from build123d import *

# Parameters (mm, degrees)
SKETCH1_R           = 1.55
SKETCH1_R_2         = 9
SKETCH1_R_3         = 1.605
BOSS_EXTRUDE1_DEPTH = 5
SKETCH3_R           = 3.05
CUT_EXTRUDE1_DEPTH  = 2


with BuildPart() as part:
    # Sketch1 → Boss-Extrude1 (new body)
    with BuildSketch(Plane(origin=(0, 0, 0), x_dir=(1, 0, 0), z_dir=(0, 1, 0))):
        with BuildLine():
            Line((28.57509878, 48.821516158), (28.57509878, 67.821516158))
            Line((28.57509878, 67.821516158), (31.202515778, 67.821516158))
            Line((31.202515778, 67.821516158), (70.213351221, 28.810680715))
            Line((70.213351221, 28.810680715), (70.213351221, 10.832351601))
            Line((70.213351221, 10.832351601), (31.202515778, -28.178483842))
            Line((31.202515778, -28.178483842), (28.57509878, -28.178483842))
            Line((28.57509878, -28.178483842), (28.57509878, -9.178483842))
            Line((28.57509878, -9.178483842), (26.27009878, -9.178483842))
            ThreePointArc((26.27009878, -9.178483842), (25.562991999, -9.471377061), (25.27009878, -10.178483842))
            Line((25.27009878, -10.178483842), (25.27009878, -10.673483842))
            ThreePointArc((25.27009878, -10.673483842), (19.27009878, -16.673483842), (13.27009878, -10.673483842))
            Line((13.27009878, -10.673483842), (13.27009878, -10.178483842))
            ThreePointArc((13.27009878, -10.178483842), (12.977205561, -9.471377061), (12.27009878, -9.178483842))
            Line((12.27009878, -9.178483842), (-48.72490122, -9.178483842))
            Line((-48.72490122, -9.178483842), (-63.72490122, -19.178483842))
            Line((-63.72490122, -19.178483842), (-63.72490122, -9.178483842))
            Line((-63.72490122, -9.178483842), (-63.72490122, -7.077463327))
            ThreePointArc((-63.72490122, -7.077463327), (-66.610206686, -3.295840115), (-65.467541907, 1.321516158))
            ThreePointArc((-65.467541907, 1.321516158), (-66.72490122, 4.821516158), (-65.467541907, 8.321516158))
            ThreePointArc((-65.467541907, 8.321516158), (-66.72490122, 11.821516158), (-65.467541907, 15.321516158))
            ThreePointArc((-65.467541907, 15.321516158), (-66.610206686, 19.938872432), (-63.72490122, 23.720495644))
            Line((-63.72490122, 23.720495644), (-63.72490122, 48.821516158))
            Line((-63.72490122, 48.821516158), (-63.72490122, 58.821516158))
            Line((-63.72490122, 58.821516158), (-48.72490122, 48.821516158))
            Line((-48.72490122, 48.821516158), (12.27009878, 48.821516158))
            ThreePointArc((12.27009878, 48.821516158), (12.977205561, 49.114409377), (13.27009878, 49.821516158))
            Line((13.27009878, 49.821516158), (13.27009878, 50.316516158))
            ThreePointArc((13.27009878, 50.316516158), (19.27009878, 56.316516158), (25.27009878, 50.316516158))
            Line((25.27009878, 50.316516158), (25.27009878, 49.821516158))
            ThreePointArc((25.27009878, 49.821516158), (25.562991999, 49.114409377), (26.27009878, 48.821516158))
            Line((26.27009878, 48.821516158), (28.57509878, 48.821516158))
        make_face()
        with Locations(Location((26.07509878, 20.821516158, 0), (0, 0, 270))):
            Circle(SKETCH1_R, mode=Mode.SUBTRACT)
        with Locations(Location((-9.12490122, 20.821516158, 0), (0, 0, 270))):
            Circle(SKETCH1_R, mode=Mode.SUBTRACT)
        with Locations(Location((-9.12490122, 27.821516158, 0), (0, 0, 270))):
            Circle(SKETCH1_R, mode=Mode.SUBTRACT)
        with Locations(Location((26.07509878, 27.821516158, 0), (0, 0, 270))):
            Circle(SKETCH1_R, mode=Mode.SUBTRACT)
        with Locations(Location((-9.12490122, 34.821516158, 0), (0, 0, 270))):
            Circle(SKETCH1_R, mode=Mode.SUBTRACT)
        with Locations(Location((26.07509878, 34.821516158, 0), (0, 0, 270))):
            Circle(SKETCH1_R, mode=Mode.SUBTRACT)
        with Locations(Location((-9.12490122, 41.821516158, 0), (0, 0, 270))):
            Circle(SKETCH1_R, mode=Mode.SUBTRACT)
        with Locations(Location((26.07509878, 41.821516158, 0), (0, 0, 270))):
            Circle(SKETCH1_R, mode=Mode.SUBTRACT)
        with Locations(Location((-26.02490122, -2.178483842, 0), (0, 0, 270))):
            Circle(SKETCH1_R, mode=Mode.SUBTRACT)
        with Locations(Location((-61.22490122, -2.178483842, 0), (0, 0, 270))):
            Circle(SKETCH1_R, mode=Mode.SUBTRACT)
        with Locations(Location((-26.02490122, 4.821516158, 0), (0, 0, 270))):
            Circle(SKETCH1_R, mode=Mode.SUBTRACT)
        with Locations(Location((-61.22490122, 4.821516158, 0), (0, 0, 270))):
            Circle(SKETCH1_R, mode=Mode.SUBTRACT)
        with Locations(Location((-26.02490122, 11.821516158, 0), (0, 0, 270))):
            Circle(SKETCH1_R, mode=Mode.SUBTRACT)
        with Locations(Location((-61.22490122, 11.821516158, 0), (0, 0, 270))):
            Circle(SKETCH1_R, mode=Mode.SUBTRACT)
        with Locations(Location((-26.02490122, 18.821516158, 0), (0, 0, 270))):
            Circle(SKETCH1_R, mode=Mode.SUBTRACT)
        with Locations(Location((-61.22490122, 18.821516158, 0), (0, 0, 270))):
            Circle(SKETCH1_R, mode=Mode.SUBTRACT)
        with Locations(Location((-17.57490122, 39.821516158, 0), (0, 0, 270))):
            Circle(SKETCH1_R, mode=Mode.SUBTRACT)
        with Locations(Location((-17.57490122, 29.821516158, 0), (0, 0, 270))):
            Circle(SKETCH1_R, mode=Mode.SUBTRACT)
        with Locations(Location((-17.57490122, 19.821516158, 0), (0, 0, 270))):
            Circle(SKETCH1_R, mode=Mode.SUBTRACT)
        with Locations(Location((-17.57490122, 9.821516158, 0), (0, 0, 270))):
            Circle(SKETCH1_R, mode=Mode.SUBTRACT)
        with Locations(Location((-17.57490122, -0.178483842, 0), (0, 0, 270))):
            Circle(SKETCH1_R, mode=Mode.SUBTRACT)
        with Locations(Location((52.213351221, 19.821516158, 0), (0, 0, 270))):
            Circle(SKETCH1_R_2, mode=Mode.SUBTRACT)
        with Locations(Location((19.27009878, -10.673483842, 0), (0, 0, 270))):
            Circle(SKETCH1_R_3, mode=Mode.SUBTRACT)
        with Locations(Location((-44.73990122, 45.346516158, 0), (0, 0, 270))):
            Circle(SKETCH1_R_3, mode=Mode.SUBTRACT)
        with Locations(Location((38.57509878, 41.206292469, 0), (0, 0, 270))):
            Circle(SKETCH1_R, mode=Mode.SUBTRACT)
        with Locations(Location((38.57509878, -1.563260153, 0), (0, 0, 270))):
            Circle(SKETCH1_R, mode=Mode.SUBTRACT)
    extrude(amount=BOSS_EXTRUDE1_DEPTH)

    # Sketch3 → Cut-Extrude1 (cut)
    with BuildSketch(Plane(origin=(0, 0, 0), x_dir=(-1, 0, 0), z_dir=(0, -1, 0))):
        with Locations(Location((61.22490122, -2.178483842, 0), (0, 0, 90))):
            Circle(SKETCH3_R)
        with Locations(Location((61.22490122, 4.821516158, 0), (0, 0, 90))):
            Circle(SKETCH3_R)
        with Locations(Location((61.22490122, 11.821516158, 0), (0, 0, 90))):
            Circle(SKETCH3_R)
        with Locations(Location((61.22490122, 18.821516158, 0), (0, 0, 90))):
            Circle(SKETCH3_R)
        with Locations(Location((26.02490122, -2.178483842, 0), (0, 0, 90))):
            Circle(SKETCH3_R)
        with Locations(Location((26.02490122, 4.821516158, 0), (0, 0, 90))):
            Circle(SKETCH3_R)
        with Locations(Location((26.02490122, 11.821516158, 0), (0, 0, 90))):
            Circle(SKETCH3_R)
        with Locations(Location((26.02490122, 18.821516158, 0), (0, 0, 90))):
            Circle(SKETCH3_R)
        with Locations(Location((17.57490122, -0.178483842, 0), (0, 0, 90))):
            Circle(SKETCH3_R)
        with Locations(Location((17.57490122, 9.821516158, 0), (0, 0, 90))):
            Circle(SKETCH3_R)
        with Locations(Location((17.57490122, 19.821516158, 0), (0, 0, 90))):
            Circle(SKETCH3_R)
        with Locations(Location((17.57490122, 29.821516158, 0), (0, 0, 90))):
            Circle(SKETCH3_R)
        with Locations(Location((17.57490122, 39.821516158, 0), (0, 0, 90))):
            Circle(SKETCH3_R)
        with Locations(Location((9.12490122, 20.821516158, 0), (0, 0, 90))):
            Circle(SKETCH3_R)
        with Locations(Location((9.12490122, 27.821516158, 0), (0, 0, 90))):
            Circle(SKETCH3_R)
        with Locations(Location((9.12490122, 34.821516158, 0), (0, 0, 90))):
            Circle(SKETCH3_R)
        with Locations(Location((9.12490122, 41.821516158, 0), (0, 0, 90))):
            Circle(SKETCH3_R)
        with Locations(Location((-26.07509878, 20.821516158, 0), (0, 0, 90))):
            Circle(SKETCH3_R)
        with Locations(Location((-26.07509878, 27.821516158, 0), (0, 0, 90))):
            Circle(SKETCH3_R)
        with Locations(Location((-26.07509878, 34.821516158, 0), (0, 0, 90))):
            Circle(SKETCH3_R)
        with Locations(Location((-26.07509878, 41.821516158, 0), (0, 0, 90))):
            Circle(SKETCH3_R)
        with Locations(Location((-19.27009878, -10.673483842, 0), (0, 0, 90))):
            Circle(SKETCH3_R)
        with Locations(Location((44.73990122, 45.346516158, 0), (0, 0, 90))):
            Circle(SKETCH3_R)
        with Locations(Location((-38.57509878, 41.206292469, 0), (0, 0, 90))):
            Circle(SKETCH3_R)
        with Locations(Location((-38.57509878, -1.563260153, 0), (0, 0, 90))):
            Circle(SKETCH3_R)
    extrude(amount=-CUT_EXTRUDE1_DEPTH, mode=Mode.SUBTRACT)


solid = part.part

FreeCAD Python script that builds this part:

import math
import FreeCAD as App
import Part
import Sketcher

V = App.Vector

doc = App.newDocument("Part")
body = doc.addObject("PartDesign::Body", "Body")

# Sketch on XZ plane
sketch1 = doc.addObject("Sketcher::SketchObject", "Sketch")
body.addObject(sketch1)
sketch1.AttachmentSupport = (doc.XZ_Plane, [""])
sketch1.MapMode = "FlatFace"
sketch1.addGeometry(Part.LineSegment(V(28.58, -67.82, 0), V(28.58, -48.82, 0)), False)
sketch1.addGeometry(Part.LineSegment(V(28.58, -48.82, 0), V(26.27, -48.82, 0)), False)
sketch1.addGeometry(Part.ArcOfCircle(Part.Circle(V(26.27, -49.82, 0), V(0, 0, 1), 1), math.radians(90), math.radians(180)), False)
sketch1.addGeometry(Part.LineSegment(V(25.27, -49.82, 0), V(25.27, -50.32, 0)), False)
sketch1.addGeometry(Part.ArcOfCircle(Part.Circle(V(19.27, -50.32, 0), V(0, 0, 1), 6), math.radians(180), math.radians(360)), False)
sketch1.addGeometry(Part.LineSegment(V(13.27, -50.32, 0), V(13.27, -49.82, 0)), False)
sketch1.addGeometry(Part.ArcOfCircle(Part.Circle(V(12.27, -49.82, 0), V(0, 0, 1), 1), math.radians(0), math.radians(90)), False)
sketch1.addGeometry(Part.LineSegment(V(12.27, -48.82, 0), V(-48.72, -48.82, 0)), False)
sketch1.addGeometry(Part.LineSegment(V(-48.72, -48.82, 0), V(-63.72, -58.82, 0)), False)
sketch1.addGeometry(Part.LineSegment(V(-63.72, -58.82, 0), V(-63.72, -23.72, 0)), False)
sketch1.addGeometry(Part.ArcOfCircle(Part.Circle(V(-61.22, -18.82, 0), V(0, 0, 1), 5.5), math.radians(140), math.radians(243)), False)
sketch1.addGeometry(Part.ArcOfCircle(Part.Circle(V(-61.22, -11.82, 0), V(0, 0, 1), 5.5), math.radians(140), math.radians(220)), False)
sketch1.addGeometry(Part.ArcOfCircle(Part.Circle(V(-61.22, -4.82, 0), V(0, 0, 1), 5.5), math.radians(140), math.radians(220)), False)
sketch1.addGeometry(Part.ArcOfCircle(Part.Circle(V(-61.22, 2.18, 0), V(0, 0, 1), 5.5), math.radians(117), math.radians(220)), False)
sketch1.addGeometry(Part.LineSegment(V(-63.72, 7.08, 0), V(-63.72, 19.18, 0)), False)
sketch1.addGeometry(Part.LineSegment(V(-63.72, 19.18, 0), V(-48.72, 9.18, 0)), False)
sketch1.addGeometry(Part.LineSegment(V(-48.72, 9.18, 0), V(12.27, 9.18, 0)), False)
sketch1.addGeometry(Part.ArcOfCircle(Part.Circle(V(12.27, 10.18, 0), V(0, 0, 1), 1), math.radians(-90), math.radians(0)), False)
sketch1.addGeometry(Part.LineSegment(V(13.27, 10.18, 0), V(13.27, 10.67, 0)), False)
sketch1.addGeometry(Part.ArcOfCircle(Part.Circle(V(19.27, 10.67, 0), V(0, 0, 1), 6), math.radians(0), math.radians(180)), False)
sketch1.addGeometry(Part.LineSegment(V(25.27, 10.67, 0), V(25.27, 10.18, 0)), False)
sketch1.addGeometry(Part.ArcOfCircle(Part.Circle(V(26.27, 10.18, 0), V(0, 0, 1), 1), math.radians(-180), math.radians(-90)), False)
sketch1.addGeometry(Part.LineSegment(V(26.27, 9.18, 0), V(28.58, 9.18, 0)), False)
sketch1.addGeometry(Part.LineSegment(V(28.58, 9.18, 0), V(28.58, 28.18, 0)), False)
sketch1.addGeometry(Part.LineSegment(V(28.58, 28.18, 0), V(31.2, 28.18, 0)), False)
sketch1.addGeometry(Part.LineSegment(V(31.2, 28.18, 0), V(70.21, -10.83, 0)), False)
sketch1.addGeometry(Part.LineSegment(V(70.21, -10.83, 0), V(70.21, -28.81, 0)), False)
sketch1.addGeometry(Part.LineSegment(V(70.21, -28.81, 0), V(31.2, -67.82, 0)), False)
sketch1.addGeometry(Part.LineSegment(V(31.2, -67.82, 0), V(28.58, -67.82, 0)), False)
sketch1.addGeometry(Part.Circle(V(38.58, 1.56, 0), V(0, 0, 1), 1.55), False)
sketch1.addGeometry(Part.Circle(V(19.27, 10.67, 0), V(0, 0, 1), 1.6), False)
sketch1.addGeometry(Part.Circle(V(-26.02, 2.18, 0), V(0, 0, 1), 1.55), False)
sketch1.addGeometry(Part.Circle(V(-17.57, 0.18, 0), V(0, 0, 1), 1.55), False)
sketch1.addGeometry(Part.Circle(V(-61.22, 2.18, 0), V(0, 0, 1), 1.55), False)
sketch1.addGeometry(Part.Circle(V(-26.02, -4.82, 0), V(0, 0, 1), 1.55), False)
sketch1.addGeometry(Part.Circle(V(-17.57, -9.82, 0), V(0, 0, 1), 1.55), False)
sketch1.addGeometry(Part.Circle(V(-26.02, -11.82, 0), V(0, 0, 1), 1.55), False)
sketch1.addGeometry(Part.Circle(V(-61.22, -4.82, 0), V(0, 0, 1), 1.55), False)
sketch1.addGeometry(Part.Circle(V(-61.22, -11.82, 0), V(0, 0, 1), 1.55), False)
sketch1.addGeometry(Part.Circle(V(52.21, -19.82, 0), V(0, 0, 1), 9), False)
sketch1.addGeometry(Part.Circle(V(26.08, -20.82, 0), V(0, 0, 1), 1.55), False)
sketch1.addGeometry(Part.Circle(V(26.08, -27.82, 0), V(0, 0, 1), 1.55), False)
sketch1.addGeometry(Part.Circle(V(38.58, -41.21, 0), V(0, 0, 1), 1.55), False)
sketch1.addGeometry(Part.Circle(V(26.08, -34.82, 0), V(0, 0, 1), 1.55), False)
sketch1.addGeometry(Part.Circle(V(26.08, -41.82, 0), V(0, 0, 1), 1.55), False)
sketch1.addGeometry(Part.Circle(V(-9.12, -20.82, 0), V(0, 0, 1), 1.55), False)
sketch1.addGeometry(Part.Circle(V(-17.57, -19.82, 0), V(0, 0, 1), 1.55), False)
sketch1.addGeometry(Part.Circle(V(-26.02, -18.82, 0), V(0, 0, 1), 1.55), False)
sketch1.addGeometry(Part.Circle(V(-9.12, -27.82, 0), V(0, 0, 1), 1.55), False)
sketch1.addGeometry(Part.Circle(V(-17.57, -29.82, 0), V(0, 0, 1), 1.55), False)
sketch1.addGeometry(Part.Circle(V(-61.22, -18.82, 0), V(0, 0, 1), 1.55), False)
sketch1.addGeometry(Part.Circle(V(-9.12, -34.82, 0), V(0, 0, 1), 1.55), False)
sketch1.addGeometry(Part.Circle(V(-9.12, -41.82, 0), V(0, 0, 1), 1.55), False)
sketch1.addGeometry(Part.Circle(V(-17.57, -39.82, 0), V(0, 0, 1), 1.55), False)
sketch1.addGeometry(Part.Circle(V(-44.74, -45.35, 0), V(0, 0, 1), 1.6), False)
sketch1.addConstraint(Sketcher.Constraint("Coincident", 0, 2, 1, 1))
sketch1.addConstraint(Sketcher.Constraint("Tangent", 1, 2, 2, 1))
sketch1.addConstraint(Sketcher.Constraint("Tangent", 2, 2, 3, 1))
sketch1.addConstraint(Sketcher.Constraint("Tangent", 3, 2, 4, 2))
sketch1.addConstraint(Sketcher.Constraint("Tangent", 4, 1, 5, 1))
sketch1.addConstraint(Sketcher.Constraint("Tangent", 5, 2, 6, 1))
sketch1.addConstraint(Sketcher.Constraint("Tangent", 6, 2, 7, 1))
sketch1.addConstraint(Sketcher.Constraint("Coincident", 7, 2, 8, 1))
sketch1.addConstraint(Sketcher.Constraint("Coincident", 8, 2, 9, 1))
sketch1.addConstraint(Sketcher.Constraint("Coincident", 9, 2, 10, 2))
sketch1.addConstraint(Sketcher.Constraint("Coincident", 10, 1, 11, 2))
sketch1.addConstraint(Sketcher.Constraint("Coincident", 11, 1, 12, 2))
sketch1.addConstraint(Sketcher.Constraint("Coincident", 12, 1, 13, 2))
sketch1.addConstraint(Sketcher.Constraint("Coincident", 13, 1, 14, 1))
sketch1.addConstraint(Sketcher.Constraint("Coincident", 14, 2, 15, 1))
sketch1.addConstraint(Sketcher.Constraint("Coincident", 15, 2, 16, 1))
sketch1.addConstraint(Sketcher.Constraint("Tangent", 16, 2, 17, 1))
sketch1.addConstraint(Sketcher.Constraint("Tangent", 17, 2, 18, 1))
sketch1.addConstraint(Sketcher.Constraint("Tangent", 18, 2, 19, 2))
sketch1.addConstraint(Sketcher.Constraint("Tangent", 19, 1, 20, 1))
sketch1.addConstraint(Sketcher.Constraint("Tangent", 20, 2, 21, 1))
sketch1.addConstraint(Sketcher.Constraint("Tangent", 21, 2, 22, 1))
sketch1.addConstraint(Sketcher.Constraint("Coincident", 22, 2, 23, 1))
sketch1.addConstraint(Sketcher.Constraint("Coincident", 23, 2, 24, 1))
sketch1.addConstraint(Sketcher.Constraint("Coincident", 24, 2, 25, 1))
sketch1.addConstraint(Sketcher.Constraint("Coincident", 25, 2, 26, 1))
sketch1.addConstraint(Sketcher.Constraint("Coincident", 26, 2, 27, 1))
sketch1.addConstraint(Sketcher.Constraint("Coincident", 27, 2, 28, 1))
sketch1.addConstraint(Sketcher.Constraint("Coincident", 28, 2, 0, 1))
sketch1.addConstraint(Sketcher.Constraint("Vertical", 0))
sketch1.addConstraint(Sketcher.Constraint("Horizontal", 1))
sketch1.addConstraint(Sketcher.Constraint("Vertical", 3))
sketch1.addConstraint(Sketcher.Constraint("Vertical", 5))
sketch1.addConstraint(Sketcher.Constraint("Horizontal", 7))
sketch1.addConstraint(Sketcher.Constraint("Vertical", 9))
sketch1.addConstraint(Sketcher.Constraint("Vertical", 14))
sketch1.addConstraint(Sketcher.Constraint("Horizontal", 16))
sketch1.addConstraint(Sketcher.Constraint("Vertical", 18))
sketch1.addConstraint(Sketcher.Constraint("Vertical", 20))
sketch1.addConstraint(Sketcher.Constraint("Horizontal", 22))
sketch1.addConstraint(Sketcher.Constraint("Vertical", 23))
sketch1.addConstraint(Sketcher.Constraint("Horizontal", 24))
sketch1.addConstraint(Sketcher.Constraint("Vertical", 26))
sketch1.addConstraint(Sketcher.Constraint("Horizontal", 28))
sketch1.addConstraint(Sketcher.Constraint("Coincident", 30, 3, 19, 3))
sketch1.addConstraint(Sketcher.Constraint("Coincident", 33, 3, 13, 3))
sketch1.addConstraint(Sketcher.Constraint("Coincident", 37, 3, 12, 3))
sketch1.addConstraint(Sketcher.Constraint("Coincident", 38, 3, 11, 3))
sketch1.addConstraint(Sketcher.Constraint("Coincident", 50, 3, 10, 3))
sketch1.addConstraint(Sketcher.Constraint("Equal", 2, 6))
sketch1.addConstraint(Sketcher.Constraint("Equal", 10, 11))
sketch1.addConstraint(Sketcher.Constraint("Equal", 11, 12))
sketch1.addConstraint(Sketcher.Constraint("Equal", 12, 13))
sketch1.addConstraint(Sketcher.Constraint("Equal", 6, 17))
sketch1.addConstraint(Sketcher.Constraint("Equal", 4, 19))
sketch1.addConstraint(Sketcher.Constraint("Equal", 17, 21))
sketch1.addConstraint(Sketcher.Constraint("Equal", 29, 31))
sketch1.addConstraint(Sketcher.Constraint("Equal", 31, 32))
sketch1.addConstraint(Sketcher.Constraint("Equal", 32, 33))
sketch1.addConstraint(Sketcher.Constraint("Equal", 33, 34))
sketch1.addConstraint(Sketcher.Constraint("Equal", 34, 35))
sketch1.addConstraint(Sketcher.Constraint("Equal", 35, 36))
sketch1.addConstraint(Sketcher.Constraint("Equal", 36, 37))
sketch1.addConstraint(Sketcher.Constraint("Equal", 37, 38))
sketch1.addConstraint(Sketcher.Constraint("Equal", 38, 40))
sketch1.addConstraint(Sketcher.Constraint("Equal", 40, 41))
sketch1.addConstraint(Sketcher.Constraint("Equal", 41, 42))
sketch1.addConstraint(Sketcher.Constraint("Equal", 42, 43))
sketch1.addConstraint(Sketcher.Constraint("Equal", 43, 44))
sketch1.addConstraint(Sketcher.Constraint("Equal", 44, 45))
sketch1.addConstraint(Sketcher.Constraint("Equal", 45, 46))
sketch1.addConstraint(Sketcher.Constraint("Equal", 46, 47))
sketch1.addConstraint(Sketcher.Constraint("Equal", 47, 48))
sketch1.addConstraint(Sketcher.Constraint("Equal", 48, 49))
sketch1.addConstraint(Sketcher.Constraint("Equal", 49, 50))
sketch1.addConstraint(Sketcher.Constraint("Equal", 50, 51))
sketch1.addConstraint(Sketcher.Constraint("Equal", 51, 52))
sketch1.addConstraint(Sketcher.Constraint("Equal", 52, 53))
sketch1.addConstraint(Sketcher.Constraint("Equal", 30, 54))
sketch1.addConstraint(Sketcher.Constraint("Perpendicular", 25, 27))
sketch1.addConstraint(Sketcher.Constraint("Horizontal", 2, 3, 6, 3))
sketch1.addConstraint(Sketcher.Constraint("Horizontal", 17, 3, 21, 3))
sketch1.addConstraint(Sketcher.Constraint("Horizontal", 13, 3, 31, 3))
sketch1.addConstraint(Sketcher.Constraint("Horizontal", 12, 3, 34, 3))
sketch1.addConstraint(Sketcher.Constraint("Horizontal", 11, 3, 36, 3))
sketch1.addConstraint(Sketcher.Constraint("Horizontal", 40, 3, 45, 3))
sketch1.addConstraint(Sketcher.Constraint("Horizontal", 39, 3, 46, 3))
sketch1.addConstraint(Sketcher.Constraint("Horizontal", 10, 3, 47, 3))
sketch1.addConstraint(Sketcher.Constraint("Horizontal", 41, 3, 48, 3))
sketch1.addConstraint(Sketcher.Constraint("Horizontal", 43, 3, 51, 3))
sketch1.addConstraint(Sketcher.Constraint("Horizontal", 44, 3, 52, 3))
sketch1.addConstraint(Sketcher.Constraint("Vertical", 10, 3, 11, 3))
sketch1.addConstraint(Sketcher.Constraint("Vertical", 11, 3, 12, 3))
sketch1.addConstraint(Sketcher.Constraint("Vertical", 12, 3, 13, 3))
sketch1.addConstraint(Sketcher.Constraint("Vertical", 6, 3, 17, 3))
sketch1.addConstraint(Sketcher.Constraint("Vertical", 31, 3, 34, 3))
sketch1.addConstraint(Sketcher.Constraint("Vertical", 32, 3, 35, 3))
sketch1.addConstraint(Sketcher.Constraint("Vertical", 34, 3, 36, 3))
sketch1.addConstraint(Sketcher.Constraint("Vertical", 40, 3, 41, 3))
sketch1.addConstraint(Sketcher.Constraint("Vertical", 29, 3, 42, 3))
sketch1.addConstraint(Sketcher.Constraint("Vertical", 41, 3, 43, 3))
sketch1.addConstraint(Sketcher.Constraint("Vertical", 43, 3, 44, 3))
sketch1.addConstraint(Sketcher.Constraint("Vertical", 35, 3, 46, 3))
sketch1.addConstraint(Sketcher.Constraint("Vertical", 36, 3, 47, 3))
sketch1.addConstraint(Sketcher.Constraint("Vertical", 45, 3, 48, 3))
sketch1.addConstraint(Sketcher.Constraint("Vertical", 46, 3, 49, 3))
sketch1.addConstraint(Sketcher.Constraint("Vertical", 48, 3, 51, 3))
sketch1.addConstraint(Sketcher.Constraint("Vertical", 51, 3, 52, 3))
sketch1.addConstraint(Sketcher.Constraint("Vertical", 49, 3, 53, 3))
sketch1.addConstraint(Sketcher.Constraint("Vertical", 10, 1, 11, 1))
sketch1.addConstraint(Sketcher.Constraint("Vertical", 11, 1, 12, 1))
sketch1.addConstraint(Sketcher.Constraint("Vertical", 9, 2, 13, 1))
sketch1.addConstraint(Sketcher.Constraint("Vertical", 7, 2, 15, 2))
sketch1.addConstraint(Sketcher.Constraint("Vertical", 0, 2, 22, 2))
sketch1.addConstraint(Sketcher.Constraint("Vertical", 24, 2, 27, 2))
sketch1.addConstraint(Sketcher.Constraint("Equal", 5, 18))
sketch1.addConstraint(Sketcher.Constraint("Equal", 0, 23))
sketch1.addConstraint(Sketcher.Constraint("Equal", 8, 15))
sketch1.addConstraint(Sketcher.Constraint("Equal", 25, 27))
sketch1.addConstraint(Sketcher.Constraint("Diameter", 39, 18.0))
sketch1.addConstraint(Sketcher.Constraint("Radius", 2, 1.0))
sketch1.addConstraint(Sketcher.Constraint("Radius", 4, 6.0))
sketch1.addConstraint(Sketcher.Constraint("Diameter", 29, 3.1))
sketch1.addConstraint(Sketcher.Constraint("Radius", 10, 5.5))
sketch1.addConstraint(Sketcher.Constraint("Diameter", 30, 3.21))
sketch1.addConstraint(Sketcher.Constraint("DistanceY", 0, 1, 0, 2, 19.0))
sketch1.addConstraint(Sketcher.Constraint("DistanceX", 1, 2, 1, 1, 2.305))
sketch1.addConstraint(Sketcher.Constraint("DistanceX", 7, 2, 7, 1, 60.995))
sketch1.addConstraint(Sketcher.Constraint("DistanceY", 3, 2, 3, 1, 0.495))
sketch1.addConstraint(Sketcher.Constraint("DistanceY", 9, 1, 9, 2, 35.101021))
sketch1.addConstraint(Sketcher.Constraint("DistanceY", 14, 1, 14, 2, 12.101021))
sketch1.addConstraint(Sketcher.Constraint("DistanceY", 26, 2, 26, 1, 17.978329))
sketch1.addConstraint(Sketcher.Constraint("DistanceX", -1, 1, 2, 3, 26.270099))
sketch1.addConstraint(Sketcher.Constraint("DistanceX", 10, 3, -1, 1, 61.224901))
sketch1.addConstraint(Sketcher.Constraint("DistanceX", -1, 1, 29, 3, 38.575099))
sketch1.addConstraint(Sketcher.Constraint("DistanceX", 31, 3, -1, 1, 26.024901))
sketch1.addConstraint(Sketcher.Constraint("DistanceX", 32, 3, -1, 1, 17.574901))
sketch1.addConstraint(Sketcher.Constraint("DistanceX", -1, 1, 40, 3, 26.075099))
sketch1.addConstraint(Sketcher.Constraint("DistanceX", 45, 3, -1, 1, 9.124901))
sketch1.addConstraint(Sketcher.Constraint("DistanceX", 54, 3, -1, 1, 44.739901))
sketch1.addConstraint(Sketcher.Constraint("DistanceX", 8, 2, -1, 1, 63.724901))
sketch1.addConstraint(Sketcher.Constraint("DistanceX", 24, 1, 24, 2, 2.627417))
sketch1.addConstraint(Sketcher.Constraint("DistanceY", -1, 1, 29, 3, 1.56326))
sketch1.addConstraint(Sketcher.Constraint("DistanceX", -1, 1, 39, 3, 52.213351))
sketch1.addConstraint(Sketcher.Constraint("DistanceX", 10, 1, -1, 1, 65.467542))
sketch1.addConstraint(Sketcher.Constraint("DistanceX", -1, 1, 25, 2, 70.213351))
sketch1.addConstraint(Sketcher.Constraint("DistanceY", 25, 2, -1, 1, 10.832352))
sketch1.addConstraint(Sketcher.Constraint("DistanceY", -1, 1, 32, 3, 0.178484))
sketch1.addConstraint(Sketcher.Constraint("DistanceY", 35, 3, -1, 1, 9.821516))
sketch1.addConstraint(Sketcher.Constraint("DistanceY", 39, 3, -1, 1, 19.821516))
sketch1.addConstraint(Sketcher.Constraint("DistanceY", 40, 3, -1, 1, 20.821516))
sketch1.addConstraint(Sketcher.Constraint("DistanceY", 41, 3, -1, 1, 27.821516))
sketch1.addConstraint(Sketcher.Constraint("DistanceY", 42, 3, -1, 1, 41.206292))
sketch1.addConstraint(Sketcher.Constraint("DistanceY", 43, 3, -1, 1, 34.821516))
sketch1.addConstraint(Sketcher.Constraint("DistanceY", 44, 3, -1, 1, 41.821516))
sketch1.addConstraint(Sketcher.Constraint("DistanceY", 49, 3, -1, 1, 29.821516))
sketch1.addConstraint(Sketcher.Constraint("DistanceY", 53, 3, -1, 1, 39.821516))
sketch1.addConstraint(Sketcher.Constraint("DistanceY", 54, 3, -1, 1, 45.346516))
pad1 = doc.addObject("PartDesign::Pad", "Pad")
body.addObject(pad1)
pad1.Profile = sketch1
pad1.Length = 5
pad1.Reversed = True

# Sketch on XZ plane
sketch2 = doc.addObject("Sketcher::SketchObject", "Sketch001")
body.addObject(sketch2)
sketch2.AttachmentSupport = (doc.XZ_Plane, [""])
sketch2.MapMode = "FlatFace"
sketch2.addGeometry(Part.Circle(V(-61.2, 2.2, 0), V(0, 0, 1), 3), False)
sketch2.addGeometry(Part.Circle(V(-61.2, -4.8, 0), V(0, 0, 1), 3), False)
sketch2.addGeometry(Part.Circle(V(-61.2, -11.8, 0), V(0, 0, 1), 3), False)
sketch2.addGeometry(Part.Circle(V(-61.2, -18.8, 0), V(0, 0, 1), 3), False)
sketch2.addGeometry(Part.Circle(V(-26, 2.2, 0), V(0, 0, 1), 3), False)
sketch2.addGeometry(Part.Circle(V(-26, -4.8, 0), V(0, 0, 1), 3), False)
sketch2.addGeometry(Part.Circle(V(-26, -11.8, 0), V(0, 0, 1), 3), False)
sketch2.addGeometry(Part.Circle(V(-26, -18.8, 0), V(0, 0, 1), 3), False)
sketch2.addGeometry(Part.Circle(V(-17.6, 0.2, 0), V(0, 0, 1), 3), False)
sketch2.addGeometry(Part.Circle(V(-17.6, -9.8, 0), V(0, 0, 1), 3), False)
sketch2.addGeometry(Part.Circle(V(-17.6, -19.8, 0), V(0, 0, 1), 3), False)
sketch2.addGeometry(Part.Circle(V(-17.6, -29.8, 0), V(0, 0, 1), 3), False)
sketch2.addGeometry(Part.Circle(V(-17.6, -39.8, 0), V(0, 0, 1), 3), False)
sketch2.addGeometry(Part.Circle(V(-9.1, -20.8, 0), V(0, 0, 1), 3), False)
sketch2.addGeometry(Part.Circle(V(-9.1, -27.8, 0), V(0, 0, 1), 3), False)
sketch2.addGeometry(Part.Circle(V(-9.1, -34.8, 0), V(0, 0, 1), 3), False)
sketch2.addGeometry(Part.Circle(V(-9.1, -41.8, 0), V(0, 0, 1), 3), False)
sketch2.addGeometry(Part.Circle(V(26.1, -20.8, 0), V(0, 0, 1), 3), False)
sketch2.addGeometry(Part.Circle(V(26.1, -27.8, 0), V(0, 0, 1), 3), False)
sketch2.addGeometry(Part.Circle(V(26.1, -34.8, 0), V(0, 0, 1), 3), False)
sketch2.addGeometry(Part.Circle(V(26.1, -41.8, 0), V(0, 0, 1), 3), False)
sketch2.addGeometry(Part.Circle(V(19.3, 10.7, 0), V(0, 0, 1), 3), False)
sketch2.addGeometry(Part.Circle(V(-44.7, -45.3, 0), V(0, 0, 1), 3), False)
sketch2.addGeometry(Part.Circle(V(38.6, -41.2, 0), V(0, 0, 1), 3), False)
sketch2.addGeometry(Part.Circle(V(38.6, 1.6, 0), V(0, 0, 1), 3), False)
sketch2.addConstraint(Sketcher.Constraint("Equal", 0, 1))
sketch2.addConstraint(Sketcher.Constraint("Equal", 1, 2))
sketch2.addConstraint(Sketcher.Constraint("Equal", 2, 3))
sketch2.addConstraint(Sketcher.Constraint("Equal", 3, 4))
sketch2.addConstraint(Sketcher.Constraint("Equal", 4, 5))
sketch2.addConstraint(Sketcher.Constraint("Equal", 5, 6))
sketch2.addConstraint(Sketcher.Constraint("Equal", 6, 7))
sketch2.addConstraint(Sketcher.Constraint("Equal", 7, 8))
sketch2.addConstraint(Sketcher.Constraint("Equal", 8, 9))
sketch2.addConstraint(Sketcher.Constraint("Equal", 9, 10))
sketch2.addConstraint(Sketcher.Constraint("Equal", 10, 11))
sketch2.addConstraint(Sketcher.Constraint("Equal", 11, 12))
sketch2.addConstraint(Sketcher.Constraint("Equal", 12, 13))
sketch2.addConstraint(Sketcher.Constraint("Equal", 13, 14))
sketch2.addConstraint(Sketcher.Constraint("Equal", 14, 15))
sketch2.addConstraint(Sketcher.Constraint("Equal", 15, 16))
sketch2.addConstraint(Sketcher.Constraint("Equal", 16, 17))
sketch2.addConstraint(Sketcher.Constraint("Equal", 17, 18))
sketch2.addConstraint(Sketcher.Constraint("Equal", 18, 19))
sketch2.addConstraint(Sketcher.Constraint("Equal", 19, 20))
sketch2.addConstraint(Sketcher.Constraint("Equal", 20, 21))
sketch2.addConstraint(Sketcher.Constraint("Equal", 21, 22))
sketch2.addConstraint(Sketcher.Constraint("Equal", 22, 23))
sketch2.addConstraint(Sketcher.Constraint("Equal", 23, 24))
sketch2.addConstraint(Sketcher.Constraint("Horizontal", 0, 3, 4, 3))
sketch2.addConstraint(Sketcher.Constraint("Horizontal", 1, 3, 5, 3))
sketch2.addConstraint(Sketcher.Constraint("Horizontal", 2, 3, 6, 3))
sketch2.addConstraint(Sketcher.Constraint("Horizontal", 3, 3, 7, 3))
sketch2.addConstraint(Sketcher.Constraint("Horizontal", 13, 3, 17, 3))
sketch2.addConstraint(Sketcher.Constraint("Horizontal", 14, 3, 18, 3))
sketch2.addConstraint(Sketcher.Constraint("Horizontal", 15, 3, 19, 3))
sketch2.addConstraint(Sketcher.Constraint("Horizontal", 16, 3, 20, 3))
sketch2.addConstraint(Sketcher.Constraint("Vertical", 0, 3, 1, 3))
sketch2.addConstraint(Sketcher.Constraint("Vertical", 1, 3, 2, 3))
sketch2.addConstraint(Sketcher.Constraint("Vertical", 2, 3, 3, 3))
sketch2.addConstraint(Sketcher.Constraint("Vertical", 4, 3, 5, 3))
sketch2.addConstraint(Sketcher.Constraint("Vertical", 5, 3, 6, 3))
sketch2.addConstraint(Sketcher.Constraint("Vertical", 6, 3, 7, 3))
sketch2.addConstraint(Sketcher.Constraint("Vertical", 8, 3, 9, 3))
sketch2.addConstraint(Sketcher.Constraint("Vertical", 9, 3, 10, 3))
sketch2.addConstraint(Sketcher.Constraint("Vertical", 10, 3, 11, 3))
sketch2.addConstraint(Sketcher.Constraint("Vertical", 11, 3, 12, 3))
sketch2.addConstraint(Sketcher.Constraint("Vertical", 13, 3, 14, 3))
sketch2.addConstraint(Sketcher.Constraint("Vertical", 14, 3, 15, 3))
sketch2.addConstraint(Sketcher.Constraint("Vertical", 15, 3, 16, 3))
sketch2.addConstraint(Sketcher.Constraint("Vertical", 17, 3, 18, 3))
sketch2.addConstraint(Sketcher.Constraint("Vertical", 18, 3, 19, 3))
sketch2.addConstraint(Sketcher.Constraint("Vertical", 19, 3, 20, 3))
sketch2.addConstraint(Sketcher.Constraint("Vertical", 23, 3, 24, 3))
sketch2.addConstraint(Sketcher.Constraint("Diameter", 0, 6.1))
sketch2.addConstraint(Sketcher.Constraint("DistanceY", 1, 3, 0, 3, 7.0))
sketch2.addConstraint(Sketcher.Constraint("DistanceY", 2, 3, 1, 3, 7.0))
sketch2.addConstraint(Sketcher.Constraint("DistanceY", 3, 3, 2, 3, 7.0))
sketch2.addConstraint(Sketcher.Constraint("DistanceY", 8, 3, 4, 3, 2.0))
sketch2.addConstraint(Sketcher.Constraint("DistanceY", 6, 3, 9, 3, 2.0))
sketch2.addConstraint(Sketcher.Constraint("DistanceY", 10, 3, 7, 3, 1.0))
sketch2.addConstraint(Sketcher.Constraint("DistanceY", 11, 3, 10, 3, 10.0))
sketch2.addConstraint(Sketcher.Constraint("DistanceY", 12, 3, 11, 3, 10.0))
sketch2.addConstraint(Sketcher.Constraint("DistanceY", 13, 3, 10, 3, 1.0))
sketch2.addConstraint(Sketcher.Constraint("DistanceY", 14, 3, 13, 3, 7.0))
sketch2.addConstraint(Sketcher.Constraint("DistanceY", 15, 3, 14, 3, 7.0))
sketch2.addConstraint(Sketcher.Constraint("DistanceY", 16, 3, 15, 3, 7.0))
sketch2.addConstraint(Sketcher.Constraint("DistanceX", 0, 3, 4, 3, 35.2))
sketch2.addConstraint(Sketcher.Constraint("DistanceX", 7, 3, 13, 3, 16.9))
sketch2.addConstraint(Sketcher.Constraint("DistanceX", 13, 3, 17, 3, 35.2))
sketch2.addConstraint(Sketcher.Constraint("DistanceX", 20, 3, 23, 3, 12.5))
sketch2.addConstraint(Sketcher.Constraint("DistanceX", 4, 3, 8, 3, 8.45))
sketch2.addConstraint(Sketcher.Constraint("DistanceX", 21, 3, 17, 3, 6.805))
sketch2.addConstraint(Sketcher.Constraint("DistanceY", 17, 3, 21, 3, 31.495))
sketch2.addConstraint(Sketcher.Constraint("DistanceX", 22, 3, 12, 3, 27.165))
sketch2.addConstraint(Sketcher.Constraint("DistanceY", 22, 3, 12, 3, 5.525))
sketch2.addConstraint(Sketcher.Constraint("DistanceX", 0, 3, -1, 1, 61.224901))
sketch2.addConstraint(Sketcher.Constraint("DistanceY", -1, 1, 24, 3, 1.56326))
sketch2.addConstraint(Sketcher.Constraint("DistanceY", -1, 1, 0, 3, 2.178484))
sketch2.addConstraint(Sketcher.Constraint("DistanceY", 23, 3, -1, 1, 41.206292))
pocket1 = doc.addObject("PartDesign::Pocket", "Pocket")
body.addObject(pocket1)
pocket1.Profile = sketch2
pocket1.Length = 2

doc.recompute()
